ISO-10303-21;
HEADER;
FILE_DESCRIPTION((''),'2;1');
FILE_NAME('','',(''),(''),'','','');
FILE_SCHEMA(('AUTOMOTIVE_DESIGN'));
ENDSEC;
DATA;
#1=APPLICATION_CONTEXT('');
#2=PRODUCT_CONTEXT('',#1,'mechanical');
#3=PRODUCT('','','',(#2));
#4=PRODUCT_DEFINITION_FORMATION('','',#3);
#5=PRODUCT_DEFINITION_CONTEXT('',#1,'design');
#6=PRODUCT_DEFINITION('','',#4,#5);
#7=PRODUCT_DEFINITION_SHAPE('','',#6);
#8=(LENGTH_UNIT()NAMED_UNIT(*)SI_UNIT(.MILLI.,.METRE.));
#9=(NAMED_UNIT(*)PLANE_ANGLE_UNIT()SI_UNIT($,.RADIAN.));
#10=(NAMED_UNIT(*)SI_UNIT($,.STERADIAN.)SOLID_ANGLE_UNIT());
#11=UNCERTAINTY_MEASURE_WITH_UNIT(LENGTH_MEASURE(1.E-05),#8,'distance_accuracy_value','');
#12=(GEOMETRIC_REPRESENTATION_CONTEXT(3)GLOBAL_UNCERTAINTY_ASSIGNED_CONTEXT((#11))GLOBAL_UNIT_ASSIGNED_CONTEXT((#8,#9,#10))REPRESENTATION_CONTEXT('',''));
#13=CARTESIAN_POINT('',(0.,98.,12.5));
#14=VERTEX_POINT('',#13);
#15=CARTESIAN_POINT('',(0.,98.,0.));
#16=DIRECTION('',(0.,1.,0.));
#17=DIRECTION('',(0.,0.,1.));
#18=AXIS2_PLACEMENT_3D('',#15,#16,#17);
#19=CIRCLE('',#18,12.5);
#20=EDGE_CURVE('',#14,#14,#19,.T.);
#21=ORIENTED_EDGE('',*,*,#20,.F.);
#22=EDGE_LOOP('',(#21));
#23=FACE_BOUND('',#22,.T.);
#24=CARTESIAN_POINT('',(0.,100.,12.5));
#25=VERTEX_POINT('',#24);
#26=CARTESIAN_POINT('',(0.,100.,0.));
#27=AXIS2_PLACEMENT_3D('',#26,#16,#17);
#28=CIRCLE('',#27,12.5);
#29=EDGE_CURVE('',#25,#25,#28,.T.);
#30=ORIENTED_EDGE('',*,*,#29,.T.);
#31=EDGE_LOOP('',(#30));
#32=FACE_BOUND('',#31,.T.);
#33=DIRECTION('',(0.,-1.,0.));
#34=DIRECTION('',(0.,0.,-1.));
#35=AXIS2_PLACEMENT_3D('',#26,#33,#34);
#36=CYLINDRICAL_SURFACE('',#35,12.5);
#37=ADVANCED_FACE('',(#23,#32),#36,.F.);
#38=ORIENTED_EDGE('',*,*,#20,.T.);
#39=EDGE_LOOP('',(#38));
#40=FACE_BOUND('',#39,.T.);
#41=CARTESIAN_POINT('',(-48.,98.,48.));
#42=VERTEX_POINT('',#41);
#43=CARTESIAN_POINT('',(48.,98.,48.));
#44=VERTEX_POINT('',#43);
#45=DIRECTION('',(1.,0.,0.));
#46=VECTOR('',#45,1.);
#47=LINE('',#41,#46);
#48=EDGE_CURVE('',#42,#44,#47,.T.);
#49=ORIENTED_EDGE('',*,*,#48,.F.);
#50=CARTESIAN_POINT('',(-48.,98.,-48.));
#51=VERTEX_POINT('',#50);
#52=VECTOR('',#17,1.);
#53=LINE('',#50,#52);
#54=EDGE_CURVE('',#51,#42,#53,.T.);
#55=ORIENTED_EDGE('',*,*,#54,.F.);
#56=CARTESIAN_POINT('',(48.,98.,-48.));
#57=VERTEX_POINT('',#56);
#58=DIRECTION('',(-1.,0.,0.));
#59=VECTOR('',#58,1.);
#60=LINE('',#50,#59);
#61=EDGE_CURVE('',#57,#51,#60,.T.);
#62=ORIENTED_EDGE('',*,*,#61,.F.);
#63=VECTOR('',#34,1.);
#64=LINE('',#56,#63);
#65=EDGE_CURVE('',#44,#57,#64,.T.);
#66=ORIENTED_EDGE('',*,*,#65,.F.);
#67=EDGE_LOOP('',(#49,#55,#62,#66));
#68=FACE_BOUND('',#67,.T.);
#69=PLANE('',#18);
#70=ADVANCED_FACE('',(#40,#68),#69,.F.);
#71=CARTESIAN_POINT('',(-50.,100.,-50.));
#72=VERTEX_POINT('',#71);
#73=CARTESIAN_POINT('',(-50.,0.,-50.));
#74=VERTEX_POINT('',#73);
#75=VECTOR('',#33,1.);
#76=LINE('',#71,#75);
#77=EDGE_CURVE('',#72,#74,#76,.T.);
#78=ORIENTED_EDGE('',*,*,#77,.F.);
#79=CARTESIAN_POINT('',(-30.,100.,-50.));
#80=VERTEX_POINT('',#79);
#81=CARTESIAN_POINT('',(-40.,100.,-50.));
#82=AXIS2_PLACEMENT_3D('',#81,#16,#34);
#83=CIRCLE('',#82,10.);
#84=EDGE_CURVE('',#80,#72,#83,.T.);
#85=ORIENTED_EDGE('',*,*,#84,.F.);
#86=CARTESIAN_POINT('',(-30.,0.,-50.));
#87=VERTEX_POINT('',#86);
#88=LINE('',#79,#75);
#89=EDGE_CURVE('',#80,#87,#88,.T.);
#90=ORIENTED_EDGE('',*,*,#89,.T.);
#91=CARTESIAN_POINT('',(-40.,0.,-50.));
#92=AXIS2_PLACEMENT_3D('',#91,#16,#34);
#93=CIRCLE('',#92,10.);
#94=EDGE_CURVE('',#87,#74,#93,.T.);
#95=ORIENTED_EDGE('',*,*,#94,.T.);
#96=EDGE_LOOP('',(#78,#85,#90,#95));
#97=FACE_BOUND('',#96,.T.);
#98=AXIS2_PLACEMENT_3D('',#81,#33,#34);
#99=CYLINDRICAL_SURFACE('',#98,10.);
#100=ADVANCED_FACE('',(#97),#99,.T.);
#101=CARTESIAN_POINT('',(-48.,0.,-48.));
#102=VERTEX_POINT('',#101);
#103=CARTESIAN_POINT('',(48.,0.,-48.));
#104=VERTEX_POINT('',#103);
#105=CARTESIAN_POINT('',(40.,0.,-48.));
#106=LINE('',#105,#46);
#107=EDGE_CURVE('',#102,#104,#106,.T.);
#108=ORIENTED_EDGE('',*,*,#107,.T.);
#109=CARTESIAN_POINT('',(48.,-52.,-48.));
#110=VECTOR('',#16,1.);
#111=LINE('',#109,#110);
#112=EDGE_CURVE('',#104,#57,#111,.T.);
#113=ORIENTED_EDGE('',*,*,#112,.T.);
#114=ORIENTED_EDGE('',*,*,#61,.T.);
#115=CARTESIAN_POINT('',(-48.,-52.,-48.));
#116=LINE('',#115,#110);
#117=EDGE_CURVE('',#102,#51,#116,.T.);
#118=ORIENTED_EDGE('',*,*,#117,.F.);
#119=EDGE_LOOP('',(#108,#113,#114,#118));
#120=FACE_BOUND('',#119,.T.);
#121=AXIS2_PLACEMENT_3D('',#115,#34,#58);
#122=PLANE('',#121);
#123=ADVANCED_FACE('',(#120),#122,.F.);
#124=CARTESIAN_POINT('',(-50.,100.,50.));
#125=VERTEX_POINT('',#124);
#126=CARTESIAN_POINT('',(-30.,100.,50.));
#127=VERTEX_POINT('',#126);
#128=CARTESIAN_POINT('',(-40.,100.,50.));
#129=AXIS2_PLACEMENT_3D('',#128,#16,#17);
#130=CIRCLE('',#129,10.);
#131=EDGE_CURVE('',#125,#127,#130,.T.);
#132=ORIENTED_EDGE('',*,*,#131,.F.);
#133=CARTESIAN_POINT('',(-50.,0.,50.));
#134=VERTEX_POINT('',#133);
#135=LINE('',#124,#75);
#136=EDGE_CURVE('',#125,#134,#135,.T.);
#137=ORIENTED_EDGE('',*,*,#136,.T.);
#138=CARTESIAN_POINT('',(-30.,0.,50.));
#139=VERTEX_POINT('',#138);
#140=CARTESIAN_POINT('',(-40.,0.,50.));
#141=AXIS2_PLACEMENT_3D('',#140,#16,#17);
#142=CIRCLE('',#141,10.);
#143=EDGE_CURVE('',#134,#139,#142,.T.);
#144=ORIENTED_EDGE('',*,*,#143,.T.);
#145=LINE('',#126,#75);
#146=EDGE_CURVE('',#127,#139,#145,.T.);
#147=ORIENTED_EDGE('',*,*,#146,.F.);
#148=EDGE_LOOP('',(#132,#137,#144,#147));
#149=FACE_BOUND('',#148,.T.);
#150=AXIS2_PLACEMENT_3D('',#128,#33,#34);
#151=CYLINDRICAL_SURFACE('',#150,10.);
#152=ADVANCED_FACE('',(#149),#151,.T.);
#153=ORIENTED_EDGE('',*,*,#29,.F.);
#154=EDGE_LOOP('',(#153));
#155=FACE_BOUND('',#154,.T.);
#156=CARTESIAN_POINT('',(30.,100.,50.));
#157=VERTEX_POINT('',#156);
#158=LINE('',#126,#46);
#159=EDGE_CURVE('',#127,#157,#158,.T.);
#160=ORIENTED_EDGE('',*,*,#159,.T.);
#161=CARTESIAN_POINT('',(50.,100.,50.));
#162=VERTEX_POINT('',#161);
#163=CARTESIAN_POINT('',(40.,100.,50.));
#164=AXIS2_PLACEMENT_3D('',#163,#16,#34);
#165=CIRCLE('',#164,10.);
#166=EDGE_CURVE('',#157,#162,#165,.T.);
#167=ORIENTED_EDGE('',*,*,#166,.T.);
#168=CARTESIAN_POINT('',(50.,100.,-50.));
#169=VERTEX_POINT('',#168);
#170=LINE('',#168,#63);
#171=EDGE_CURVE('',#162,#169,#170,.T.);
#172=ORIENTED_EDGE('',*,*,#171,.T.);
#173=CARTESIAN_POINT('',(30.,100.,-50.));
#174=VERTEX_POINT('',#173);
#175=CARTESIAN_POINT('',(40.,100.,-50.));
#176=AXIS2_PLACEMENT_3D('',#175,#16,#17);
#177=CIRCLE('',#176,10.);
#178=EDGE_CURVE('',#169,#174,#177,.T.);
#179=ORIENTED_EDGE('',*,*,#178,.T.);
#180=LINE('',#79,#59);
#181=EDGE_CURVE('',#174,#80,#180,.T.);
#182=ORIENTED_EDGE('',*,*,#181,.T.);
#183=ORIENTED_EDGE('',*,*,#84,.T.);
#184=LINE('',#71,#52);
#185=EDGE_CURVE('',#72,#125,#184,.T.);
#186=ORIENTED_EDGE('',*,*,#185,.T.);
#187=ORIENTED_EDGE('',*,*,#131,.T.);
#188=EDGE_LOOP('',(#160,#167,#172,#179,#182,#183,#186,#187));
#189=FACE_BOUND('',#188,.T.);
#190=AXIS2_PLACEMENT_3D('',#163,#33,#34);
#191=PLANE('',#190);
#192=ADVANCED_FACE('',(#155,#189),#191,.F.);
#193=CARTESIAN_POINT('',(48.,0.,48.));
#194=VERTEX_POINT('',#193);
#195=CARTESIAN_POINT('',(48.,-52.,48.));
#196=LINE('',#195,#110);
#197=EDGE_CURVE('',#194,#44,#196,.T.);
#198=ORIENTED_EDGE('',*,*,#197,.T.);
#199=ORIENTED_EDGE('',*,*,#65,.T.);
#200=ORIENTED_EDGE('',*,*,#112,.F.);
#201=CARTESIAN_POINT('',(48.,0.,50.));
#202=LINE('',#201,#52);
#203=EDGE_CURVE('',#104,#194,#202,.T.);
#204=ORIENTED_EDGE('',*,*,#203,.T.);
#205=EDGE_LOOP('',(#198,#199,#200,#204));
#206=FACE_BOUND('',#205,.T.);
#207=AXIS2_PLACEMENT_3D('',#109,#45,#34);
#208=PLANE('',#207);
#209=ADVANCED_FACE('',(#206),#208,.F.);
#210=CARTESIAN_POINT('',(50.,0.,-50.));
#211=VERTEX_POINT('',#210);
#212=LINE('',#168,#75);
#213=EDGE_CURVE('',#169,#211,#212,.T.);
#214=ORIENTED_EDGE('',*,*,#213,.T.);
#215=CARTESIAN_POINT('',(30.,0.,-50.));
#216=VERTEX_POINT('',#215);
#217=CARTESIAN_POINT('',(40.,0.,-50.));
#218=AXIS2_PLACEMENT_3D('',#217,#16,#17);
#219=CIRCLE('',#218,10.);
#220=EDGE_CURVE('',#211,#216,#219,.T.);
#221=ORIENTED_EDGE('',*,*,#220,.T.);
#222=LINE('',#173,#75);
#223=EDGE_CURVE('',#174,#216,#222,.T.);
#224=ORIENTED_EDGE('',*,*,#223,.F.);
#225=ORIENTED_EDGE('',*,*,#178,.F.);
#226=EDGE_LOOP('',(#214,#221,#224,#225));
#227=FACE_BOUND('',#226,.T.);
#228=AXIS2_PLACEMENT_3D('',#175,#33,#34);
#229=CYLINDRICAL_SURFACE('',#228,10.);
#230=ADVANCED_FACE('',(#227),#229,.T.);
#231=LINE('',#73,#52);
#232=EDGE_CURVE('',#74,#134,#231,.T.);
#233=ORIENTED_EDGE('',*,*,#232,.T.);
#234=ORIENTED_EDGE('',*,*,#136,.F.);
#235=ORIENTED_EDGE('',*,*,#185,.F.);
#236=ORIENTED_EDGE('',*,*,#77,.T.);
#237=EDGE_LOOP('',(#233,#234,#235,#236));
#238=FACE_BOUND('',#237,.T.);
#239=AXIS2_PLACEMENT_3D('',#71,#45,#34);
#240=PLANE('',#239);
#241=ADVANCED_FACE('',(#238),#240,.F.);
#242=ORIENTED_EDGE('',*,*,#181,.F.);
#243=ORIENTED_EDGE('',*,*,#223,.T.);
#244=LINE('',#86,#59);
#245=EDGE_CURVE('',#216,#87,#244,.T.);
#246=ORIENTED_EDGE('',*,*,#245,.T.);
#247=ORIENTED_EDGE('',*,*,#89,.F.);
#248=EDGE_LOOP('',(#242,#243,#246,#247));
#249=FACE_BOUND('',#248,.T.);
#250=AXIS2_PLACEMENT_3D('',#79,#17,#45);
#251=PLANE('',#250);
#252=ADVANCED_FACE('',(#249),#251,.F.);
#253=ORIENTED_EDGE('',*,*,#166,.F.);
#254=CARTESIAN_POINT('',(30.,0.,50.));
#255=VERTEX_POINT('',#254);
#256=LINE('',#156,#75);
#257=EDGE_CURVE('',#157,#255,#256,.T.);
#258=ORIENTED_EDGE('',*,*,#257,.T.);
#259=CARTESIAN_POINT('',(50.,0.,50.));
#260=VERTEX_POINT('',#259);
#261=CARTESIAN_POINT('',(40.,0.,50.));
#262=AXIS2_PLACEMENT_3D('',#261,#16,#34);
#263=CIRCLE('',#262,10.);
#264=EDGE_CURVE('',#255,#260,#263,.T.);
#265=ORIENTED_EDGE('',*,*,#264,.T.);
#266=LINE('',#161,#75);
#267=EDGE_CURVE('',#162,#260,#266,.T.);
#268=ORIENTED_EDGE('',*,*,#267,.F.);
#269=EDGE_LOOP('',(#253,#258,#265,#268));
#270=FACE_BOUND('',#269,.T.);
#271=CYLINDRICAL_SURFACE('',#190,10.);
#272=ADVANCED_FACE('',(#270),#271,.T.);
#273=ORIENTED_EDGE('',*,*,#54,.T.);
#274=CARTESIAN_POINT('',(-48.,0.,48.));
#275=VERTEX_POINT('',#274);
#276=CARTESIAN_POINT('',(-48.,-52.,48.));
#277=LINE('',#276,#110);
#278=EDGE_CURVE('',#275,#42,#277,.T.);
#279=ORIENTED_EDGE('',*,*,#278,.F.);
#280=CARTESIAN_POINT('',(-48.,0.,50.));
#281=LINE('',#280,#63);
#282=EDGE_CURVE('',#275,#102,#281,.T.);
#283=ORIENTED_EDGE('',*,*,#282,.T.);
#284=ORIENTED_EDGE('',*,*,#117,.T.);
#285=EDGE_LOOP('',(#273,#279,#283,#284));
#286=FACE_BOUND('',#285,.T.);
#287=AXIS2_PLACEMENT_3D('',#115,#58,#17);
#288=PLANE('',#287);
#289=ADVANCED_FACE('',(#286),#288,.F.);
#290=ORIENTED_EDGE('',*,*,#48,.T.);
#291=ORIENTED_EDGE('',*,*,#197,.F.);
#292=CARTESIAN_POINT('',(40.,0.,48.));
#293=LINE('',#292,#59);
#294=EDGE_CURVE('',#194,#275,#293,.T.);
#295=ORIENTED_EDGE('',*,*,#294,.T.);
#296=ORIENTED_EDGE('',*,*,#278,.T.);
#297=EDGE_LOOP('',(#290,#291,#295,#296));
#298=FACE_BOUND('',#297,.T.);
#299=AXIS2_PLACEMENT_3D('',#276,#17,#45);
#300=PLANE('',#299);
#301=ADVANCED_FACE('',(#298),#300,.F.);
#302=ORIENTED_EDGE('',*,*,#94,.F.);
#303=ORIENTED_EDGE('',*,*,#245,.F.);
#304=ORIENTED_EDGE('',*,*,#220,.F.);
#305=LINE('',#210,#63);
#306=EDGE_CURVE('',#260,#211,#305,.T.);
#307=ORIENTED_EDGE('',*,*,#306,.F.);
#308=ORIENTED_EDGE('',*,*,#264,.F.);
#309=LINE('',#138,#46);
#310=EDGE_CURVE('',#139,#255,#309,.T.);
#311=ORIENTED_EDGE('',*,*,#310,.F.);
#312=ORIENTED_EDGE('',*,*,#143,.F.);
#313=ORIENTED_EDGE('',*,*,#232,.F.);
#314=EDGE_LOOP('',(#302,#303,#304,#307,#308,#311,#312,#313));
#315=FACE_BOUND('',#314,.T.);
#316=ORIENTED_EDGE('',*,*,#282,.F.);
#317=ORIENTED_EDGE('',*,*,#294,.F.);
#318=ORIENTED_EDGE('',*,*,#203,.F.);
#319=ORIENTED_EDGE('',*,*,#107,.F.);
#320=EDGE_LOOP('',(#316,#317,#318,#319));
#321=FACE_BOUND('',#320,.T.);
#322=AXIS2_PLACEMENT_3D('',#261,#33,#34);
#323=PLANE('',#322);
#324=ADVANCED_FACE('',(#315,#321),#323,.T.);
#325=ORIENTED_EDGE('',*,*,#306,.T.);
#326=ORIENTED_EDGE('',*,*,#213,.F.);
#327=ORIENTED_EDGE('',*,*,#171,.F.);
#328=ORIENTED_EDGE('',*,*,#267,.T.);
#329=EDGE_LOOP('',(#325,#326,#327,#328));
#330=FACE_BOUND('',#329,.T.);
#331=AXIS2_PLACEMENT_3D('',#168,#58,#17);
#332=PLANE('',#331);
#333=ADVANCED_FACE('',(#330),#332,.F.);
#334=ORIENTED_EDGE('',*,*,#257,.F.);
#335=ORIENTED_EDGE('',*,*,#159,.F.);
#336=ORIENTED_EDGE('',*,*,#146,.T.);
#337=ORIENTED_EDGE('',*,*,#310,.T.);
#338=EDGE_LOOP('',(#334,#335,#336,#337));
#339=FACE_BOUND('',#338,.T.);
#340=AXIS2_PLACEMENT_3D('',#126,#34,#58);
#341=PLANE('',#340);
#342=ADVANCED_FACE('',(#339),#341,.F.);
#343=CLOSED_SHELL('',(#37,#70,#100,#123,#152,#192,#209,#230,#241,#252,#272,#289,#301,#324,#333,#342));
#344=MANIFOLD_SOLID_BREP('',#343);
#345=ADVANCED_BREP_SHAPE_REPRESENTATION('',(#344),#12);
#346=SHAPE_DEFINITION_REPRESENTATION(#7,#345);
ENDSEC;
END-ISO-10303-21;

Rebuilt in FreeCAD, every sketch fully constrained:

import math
import FreeCAD as App
import Part
import Sketcher
from FreeCAD import Vector
Q = App.Units.Quantity


def add_polygon(sketch, points):
    """Adds a closed chain of lines whose ends are joined by coincident constraints."""
    first, n = sketch.GeometryCount, len(points)
    for a, b in zip(points, points[1:] + points[:1]):
        sketch.addGeometry(Part.LineSegment(App.Vector(*a, 0), App.Vector(*b, 0)), False)
    for i in range(n):
        sketch.addConstraint(Sketcher.Constraint("Coincident", first + i, 2, first + (i + 1) % n, 1))

doc = App.newDocument("Part")
body = doc.addObject("PartDesign::Body", "Body")

# Sketch on XZ plane
sketch1 = body.newObject("Sketcher::SketchObject", "Sketch")
sketch1.AttachmentSupport = (doc.getObject("XZ_Plane"), [""])
sketch1.MapMode = "FlatFace"
sketch1.addGeometry(Part.LineSegment(Vector(30, -50, 0), Vector(-30, -50, 0)), False)
sketch1.addGeometry(Part.ArcOfCircle(Part.Circle(Vector(-40, -50, 0), Vector(0, 0, 1), 10), math.radians(180), math.radians(360)), False)
sketch1.addGeometry(Part.LineSegment(Vector(-50, -50, 0), Vector(-50, 50, 0)), False)
sketch1.addGeometry(Part.ArcOfCircle(Part.Circle(Vector(-40, 50, 0), Vector(0, 0, 1), 10), math.radians(0), math.radians(180)), False)
sketch1.addGeometry(Part.LineSegment(Vector(-30, 50, 0), Vector(30, 50, 0)), False)
sketch1.addGeometry(Part.ArcOfCircle(Part.Circle(Vector(40, 50, 0), Vector(0, 0, 1), 10), math.radians(0), math.radians(180)), False)
sketch1.addGeometry(Part.LineSegment(Vector(50, 50, 0), Vector(50, -50, 0)), False)
sketch1.addGeometry(Part.ArcOfCircle(Part.Circle(Vector(40, -50, 0), Vector(0, 0, 1), 10), math.radians(180), math.radians(360)), False)
sketch1.addGeometry(Part.Circle(Vector(0, 0, 0), Vector(0, 0, 1), 12), False)
sketch1.addConstraint(Sketcher.Constraint("Coincident", 0, 2, 1, 2))
sketch1.addConstraint(Sketcher.Constraint("Tangent", 1, 1, 2, 1))
sketch1.addConstraint(Sketcher.Constraint("Tangent", 2, 2, 3, 2))
sketch1.addConstraint(Sketcher.Constraint("Coincident", 3, 1, 4, 1))
sketch1.addConstraint(Sketcher.Constraint("Coincident", 4, 2, 5, 2))
sketch1.addConstraint(Sketcher.Constraint("Tangent", 5, 1, 6, 1))
sketch1.addConstraint(Sketcher.Constraint("Tangent", 6, 2, 7, 2))
sketch1.addConstraint(Sketcher.Constraint("Coincident", 7, 1, 0, 1))
sketch1.addConstraint(Sketcher.Constraint("Horizontal", 0))
sketch1.addConstraint(Sketcher.Constraint("Vertical", 2))
sketch1.addConstraint(Sketcher.Constraint("Horizontal", 4))
sketch1.addConstraint(Sketcher.Constraint("Vertical", 6))
sketch1.addConstraint(Sketcher.Constraint("Coincident", 8, 3, -1, 1))
sketch1.addConstraint(Sketcher.Constraint("Equal", 1, 3))
sketch1.addConstraint(Sketcher.Constraint("Equal", 3, 5))
sketch1.addConstraint(Sketcher.Constraint("Equal", 5, 7))
sketch1.addConstraint(Sketcher.Constraint("Symmetric", 1, 3, 5, 3, -1, 1))
sketch1.addConstraint(Sketcher.Constraint("Horizontal", 3, 3, 5, 3))
sketch1.addConstraint(Sketcher.Constraint("Horizontal", 1, 3, 7, 3))
sketch1.addConstraint(Sketcher.Constraint("Horizontal", 7, 3, 0, 2))
sketch1.addConstraint(Sketcher.Constraint("Horizontal", 2, 2, 3, 1))
sketch1.addConstraint(Sketcher.Constraint("Diameter", 8, Q("25 mm")))
sketch1.addConstraint(Sketcher.Constraint("Radius", 1, Q("10 mm")))
sketch1.addConstraint(Sketcher.Constraint("DistanceX", 0, 2, 0, 1, Q("60 mm")))
sketch1.addConstraint(Sketcher.Constraint("DistanceY", 2, 1, 2, 2, Q("100 mm")))
pad1 = body.newObject("PartDesign::Pad", "Pad")
pad1.Profile = sketch1
pad1.Length = 100
pad1.Reversed = True

# Sketch on XZ plane
sketch2 = body.newObject("Sketcher::SketchObject", "Sketch001")
sketch2.AttachmentSupport = (doc.getObject("XZ_Plane"), [""])
sketch2.MapMode = "FlatFace"
sketch2.AttachmentOffset = App.Placement(Vector(0, 0, -98), App.Rotation())
add_polygon(sketch2, [(-48, -48), (-48, 48), (48, 48), (48, -48)])  # lines 0-3
sketch2.addConstraint(Sketcher.Constraint("Vertical", 0))
sketch2.addConstraint(Sketcher.Constraint("Horizontal", 1))
sketch2.addConstraint(Sketcher.Constraint("Vertical", 2))
sketch2.addConstraint(Sketcher.Constraint("Horizontal", 3))
sketch2.addConstraint(Sketcher.Constraint("Symmetric", 0, 2, 2, 2, -1, 1))
sketch2.addConstraint(Sketcher.Constraint("Equal", 3, 0))
sketch2.addConstraint(Sketcher.Constraint("DistanceX", 1, 1, 1, 2, Q("96 mm")))
pocket1 = body.newObject("PartDesign::Pocket", "Pocket")
pocket1.Profile = sketch2
pocket1.Length = 150
pocket1.Reversed = True

doc.recompute()
